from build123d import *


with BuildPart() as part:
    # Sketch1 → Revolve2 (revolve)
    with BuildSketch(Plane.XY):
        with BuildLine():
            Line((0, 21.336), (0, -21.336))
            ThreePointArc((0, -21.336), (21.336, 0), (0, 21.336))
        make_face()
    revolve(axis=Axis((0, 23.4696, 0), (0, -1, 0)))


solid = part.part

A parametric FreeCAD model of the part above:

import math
import FreeCAD as App
import Part
import Sketcher
Q = App.Units.Quantity

doc = App.newDocument("Part")
params = doc.addObject("Spreadsheet::Sheet", "Params")
for row, (alias, value) in enumerate([
    ("sketch1_radius", "0.84 in"),
    ("revolution_angle", "360 deg"),
], start=1):
    params.set(f"A{row}", alias)
    params.set(f"B{row}", "=" + value)
    params.setAlias(f"B{row}", alias)

body = doc.addObject("PartDesign::Body", "Body")

# Sketch on XY plane
sketch1 = body.newObject("Sketcher::SketchObject", "Sketch")
sketch1.AttachmentSupport = (doc.getObject("XY_Plane"), [""])
sketch1.MapMode = "FlatFace"
sketch1.addGeometry(Part.LineSegment(App.Vector(0, 21.336, 0), App.Vector(0, -21.336, 0)), False)
sketch1.addGeometry(Part.ArcOfCircle(Part.Circle(App.Vector(0, 0, 0), App.Vector(0, 0, 1), 21.336), math.radians(-90), math.radians(90)), False)
sketch1.addConstraint(Sketcher.Constraint("Coincident", 0, 1, 1, 2))
sketch1.addConstraint(Sketcher.Constraint("Coincident", 1, 1, 0, 2))
sketch1.addConstraint(Sketcher.Constraint("Vertical", 0))
sketch1.addConstraint(Sketcher.Constraint("Coincident", 1, 3, -1, 1))
sketch1.addConstraint(Sketcher.Constraint("PointOnObject", 0, 1, -2))
sketch1.addConstraint(Sketcher.Constraint("Radius", 1, Q("0.84 in")))
sketch1.setExpression("Constraints[5]", "Params.sketch1_radius")
revolution = body.newObject("PartDesign::Revolution", "Revolution")
revolution.Profile = sketch1
revolution.ReferenceAxis = (sketch1, ["V_Axis"])
revolution.setExpression("Angle", "Params.revolution_angle")

doc.recompute()
